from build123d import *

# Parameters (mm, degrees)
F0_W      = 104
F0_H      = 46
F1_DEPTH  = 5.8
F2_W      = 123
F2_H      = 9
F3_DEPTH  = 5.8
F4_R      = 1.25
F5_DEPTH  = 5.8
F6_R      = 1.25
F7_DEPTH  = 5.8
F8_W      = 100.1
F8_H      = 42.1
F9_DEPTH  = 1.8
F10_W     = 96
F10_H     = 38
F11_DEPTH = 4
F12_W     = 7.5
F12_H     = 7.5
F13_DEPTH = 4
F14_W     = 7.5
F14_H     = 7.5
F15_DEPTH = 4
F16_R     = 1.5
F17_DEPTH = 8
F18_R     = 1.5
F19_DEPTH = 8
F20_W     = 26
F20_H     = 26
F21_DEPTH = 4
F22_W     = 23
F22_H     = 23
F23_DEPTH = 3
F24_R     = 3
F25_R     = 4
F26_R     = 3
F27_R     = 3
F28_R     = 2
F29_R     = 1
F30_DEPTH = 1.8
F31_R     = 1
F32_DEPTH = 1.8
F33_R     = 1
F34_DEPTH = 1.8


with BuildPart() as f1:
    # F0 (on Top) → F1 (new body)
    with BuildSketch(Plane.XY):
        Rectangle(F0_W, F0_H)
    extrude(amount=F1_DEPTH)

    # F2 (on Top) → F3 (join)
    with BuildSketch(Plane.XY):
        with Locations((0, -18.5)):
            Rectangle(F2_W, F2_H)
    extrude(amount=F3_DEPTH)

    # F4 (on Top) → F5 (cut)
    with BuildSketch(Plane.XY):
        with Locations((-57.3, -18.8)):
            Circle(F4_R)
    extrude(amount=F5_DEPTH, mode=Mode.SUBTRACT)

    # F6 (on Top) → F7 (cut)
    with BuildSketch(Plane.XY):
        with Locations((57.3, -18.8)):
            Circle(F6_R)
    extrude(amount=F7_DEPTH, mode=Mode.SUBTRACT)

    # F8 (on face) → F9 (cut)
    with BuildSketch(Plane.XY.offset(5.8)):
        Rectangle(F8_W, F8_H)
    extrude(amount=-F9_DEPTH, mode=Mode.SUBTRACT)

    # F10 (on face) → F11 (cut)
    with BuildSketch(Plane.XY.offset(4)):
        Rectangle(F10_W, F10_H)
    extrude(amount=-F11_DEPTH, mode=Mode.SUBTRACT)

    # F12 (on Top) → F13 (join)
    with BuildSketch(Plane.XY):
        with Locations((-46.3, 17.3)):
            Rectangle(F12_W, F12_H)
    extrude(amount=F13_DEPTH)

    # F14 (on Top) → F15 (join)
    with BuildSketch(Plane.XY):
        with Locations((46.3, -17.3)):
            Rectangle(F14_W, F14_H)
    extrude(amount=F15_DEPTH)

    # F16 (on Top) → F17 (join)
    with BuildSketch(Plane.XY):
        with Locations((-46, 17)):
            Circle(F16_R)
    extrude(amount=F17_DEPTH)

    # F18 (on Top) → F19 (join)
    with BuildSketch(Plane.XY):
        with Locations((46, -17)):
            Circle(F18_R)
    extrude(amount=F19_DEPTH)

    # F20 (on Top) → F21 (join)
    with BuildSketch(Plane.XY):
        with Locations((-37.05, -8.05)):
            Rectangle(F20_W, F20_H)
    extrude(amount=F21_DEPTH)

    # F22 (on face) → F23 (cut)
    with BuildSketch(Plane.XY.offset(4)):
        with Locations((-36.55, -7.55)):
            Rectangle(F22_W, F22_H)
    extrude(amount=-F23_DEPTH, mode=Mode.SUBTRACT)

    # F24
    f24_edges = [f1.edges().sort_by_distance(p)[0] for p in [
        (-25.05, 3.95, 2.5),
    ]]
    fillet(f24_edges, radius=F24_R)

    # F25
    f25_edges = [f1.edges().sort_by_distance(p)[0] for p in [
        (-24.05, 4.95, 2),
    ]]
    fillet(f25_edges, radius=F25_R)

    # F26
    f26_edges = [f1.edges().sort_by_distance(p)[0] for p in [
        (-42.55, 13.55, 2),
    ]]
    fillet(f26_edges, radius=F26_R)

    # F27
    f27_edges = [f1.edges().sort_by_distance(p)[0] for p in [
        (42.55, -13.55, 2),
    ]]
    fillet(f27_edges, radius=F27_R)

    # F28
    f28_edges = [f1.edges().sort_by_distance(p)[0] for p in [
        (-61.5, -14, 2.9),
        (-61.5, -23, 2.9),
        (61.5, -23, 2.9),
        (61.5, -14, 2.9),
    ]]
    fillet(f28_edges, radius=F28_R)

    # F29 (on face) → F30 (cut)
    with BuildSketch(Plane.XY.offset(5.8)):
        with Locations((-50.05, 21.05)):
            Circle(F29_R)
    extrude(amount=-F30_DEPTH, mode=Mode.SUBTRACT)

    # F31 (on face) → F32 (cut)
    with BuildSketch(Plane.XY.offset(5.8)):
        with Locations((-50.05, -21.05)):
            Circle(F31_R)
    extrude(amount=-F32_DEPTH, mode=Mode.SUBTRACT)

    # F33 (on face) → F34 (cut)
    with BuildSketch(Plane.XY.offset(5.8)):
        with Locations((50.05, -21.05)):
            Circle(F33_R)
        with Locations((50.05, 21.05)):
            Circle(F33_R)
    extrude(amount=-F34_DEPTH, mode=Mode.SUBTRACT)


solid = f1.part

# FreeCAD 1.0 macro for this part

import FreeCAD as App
import Part
import Sketcher

V = App.Vector
Q = App.Units.Quantity


def edges_at(feature, points):
    """Names of the edges that pass closest to the given points."""
    edges = feature.Shape.Edges
    near = lambda p: min(range(len(edges)), key=lambda i: edges[i].distToShape(Part.Vertex(*p))[0])
    return sorted({f"Edge{near(p) + 1}" for p in points})

doc = App.newDocument("Part")
body = doc.addObject("PartDesign::Body", "Body")

# Sketch on XY plane
sketch1 = doc.addObject("Sketcher::SketchObject", "Sketch")
body.addObject(sketch1)
sketch1.AttachmentSupport = (doc.XY_Plane, [""])
sketch1.MapMode = "FlatFace"
sketch1.addGeometry([
    Part.LineSegment(V(-52, 23, 0), V(-52, -23, 0)),
    Part.LineSegment(V(-52, -23, 0), V(52, -23, 0)),
    Part.LineSegment(V(52, -23, 0), V(52, 23, 0)),
    Part.LineSegment(V(52, 23, 0), V(-52, 23, 0)),
], False)
sketch1.addConstraint([
    Sketcher.Constraint("Coincident", 0, 2, 1, 1),
    Sketcher.Constraint("Coincident", 1, 2, 2, 1),
    Sketcher.Constraint("Coincident", 2, 2, 3, 1),
    Sketcher.Constraint("Coincident", 3, 2, 0, 1),
    Sketcher.Constraint("Vertical", 0),
    Sketcher.Constraint("Horizontal", 1),
    Sketcher.Constraint("Vertical", 2),
    Sketcher.Constraint("Horizontal", 3),
    Sketcher.Constraint("Symmetric", 0, 2, 2, 2, -1, 1),
    Sketcher.Constraint("DistanceX", 1, 1, 1, 2, Q("104 mm")),
    Sketcher.Constraint("DistanceY", 0, 2, 0, 1, Q("46 mm")),
])
pad1 = doc.addObject("PartDesign::Pad", "Pad")
body.addObject(pad1)
pad1.Profile = sketch1
pad1.Length = 5.8

# Sketch on XY plane
sketch2 = doc.addObject("Sketcher::SketchObject", "Sketch001")
body.addObject(sketch2)
sketch2.AttachmentSupport = (doc.XY_Plane, [""])
sketch2.MapMode = "FlatFace"
sketch2.addGeometry([
    Part.LineSegment(V(-62, -14, 0), V(-62, -23, 0)),
    Part.LineSegment(V(-62, -23, 0), V(62, -23, 0)),
    Part.LineSegment(V(62, -23, 0), V(62, -14, 0)),
    Part.LineSegment(V(62, -14, 0), V(-62, -14, 0)),
], False)
sketch2.addConstraint([
    Sketcher.Constraint("Coincident", 0, 2, 1, 1),
    Sketcher.Constraint("Coincident", 1, 2, 2, 1),
    Sketcher.Constraint("Coincident", 2, 2, 3, 1),
    Sketcher.Constraint("Coincident", 3, 2, 0, 1),
    Sketcher.Constraint("Vertical", 0),
    Sketcher.Constraint("Horizontal", 1),
    Sketcher.Constraint("Vertical", 2),
    Sketcher.Constraint("Horizontal", 3),
    Sketcher.Constraint("DistanceX", 1, 1, 1, 2, Q("123 mm")),
    Sketcher.Constraint("DistanceY", 0, 2, 0, 1, Q("9 mm")),
    Sketcher.Constraint("DistanceY", 0, 2, -1, 1, Q("23 mm")),
    Sketcher.Constraint("DistanceX", 0, 2, -1, 1, Q("61.5 mm")),
])
pad2 = doc.addObject("PartDesign::Pad", "Pad001")
body.addObject(pad2)
pad2.Profile = sketch2
pad2.Length = 5.8

# Sketch on XY plane
sketch3 = doc.addObject("Sketcher::SketchObject", "Sketch002")
body.addObject(sketch3)
sketch3.AttachmentSupport = (doc.XY_Plane, [""])
sketch3.MapMode = "FlatFace"
sketch3.addGeometry(Part.Circle(V(-57.3, -18.8, 0), V(0, 0, 1), 1.2), False)
sketch3.addConstraint([
    Sketcher.Constraint("Diameter", 0, Q("2.5 mm")),
    Sketcher.Constraint("DistanceX", 0, 3, -1, 1, Q("57.3 mm")),
    Sketcher.Constraint("DistanceY", 0, 3, -1, 1, Q("18.8 mm")),
])
pocket1 = doc.addObject("PartDesign::Pocket", "Pocket")
body.addObject(pocket1)
pocket1.Profile = sketch3
pocket1.Length = 5.8
pocket1.Reversed = True

# Sketch on XY plane
sketch4 = doc.addObject("Sketcher::SketchObject", "Sketch003")
body.addObject(sketch4)
sketch4.AttachmentSupport = (doc.XY_Plane, [""])
sketch4.MapMode = "FlatFace"
sketch4.addGeometry(Part.Circle(V(57.3, -18.8, 0), V(0, 0, 1), 1.2), False)
sketch4.addConstraint([
    Sketcher.Constraint("Diameter", 0, Q("2.5 mm")),
    Sketcher.Constraint("DistanceX", -1, 1, 0, 3, Q("57.3 mm")),
    Sketcher.Constraint("DistanceY", 0, 3, -1, 1, Q("18.8 mm")),
])
pocket2 = doc.addObject("PartDesign::Pocket", "Pocket001")
body.addObject(pocket2)
pocket2.Profile = sketch4
pocket2.Length = 5.8
pocket2.Reversed = True

# Sketch on XY plane
sketch5 = doc.addObject("Sketcher::SketchObject", "Sketch004")
body.addObject(sketch5)
sketch5.AttachmentSupport = (doc.XY_Plane, [""])
sketch5.MapMode = "FlatFace"
sketch5.AttachmentOffset = App.Placement(V(0, 0, 5.8), App.Rotation())
sketch5.addGeometry([
    Part.LineSegment(V(-50, 21, 0), V(-50, -21, 0)),
    Part.LineSegment(V(-50, -21, 0), V(50, -21, 0)),
    Part.LineSegment(V(50, -21, 0), V(50, 21, 0)),
    Part.LineSegment(V(50, 21, 0), V(-50, 21, 0)),
], False)
sketch5.addConstraint([
    Sketcher.Constraint("Coincident", 0, 2, 1, 1),
    Sketcher.Constraint("Coincident", 1, 2, 2, 1),
    Sketcher.Constraint("Coincident", 2, 2, 3, 1),
    Sketcher.Constraint("Coincident", 3, 2, 0, 1),
    Sketcher.Constraint("Vertical", 0),
    Sketcher.Constraint("Horizontal", 1),
    Sketcher.Constraint("Vertical", 2),
    Sketcher.Constraint("Horizontal", 3),
    Sketcher.Constraint("Symmetric", 0, 2, 2, 2, -1, 1),
    Sketcher.Constraint("DistanceX", 1, 1, 1, 2, Q("100.1 mm")),
    Sketcher.Constraint("DistanceY", 0, 2, 0, 1, Q("42.1 mm")),
])
pocket3 = doc.addObject("PartDesign::Pocket", "Pocket002")
body.addObject(pocket3)
pocket3.Profile = sketch5
pocket3.Length = 1.8

# Sketch on XY plane
sketch6 = doc.addObject("Sketcher::SketchObject", "Sketch005")
body.addObject(sketch6)
sketch6.AttachmentSupport = (doc.XY_Plane, [""])
sketch6.MapMode = "FlatFace"
sketch6.AttachmentOffset = App.Placement(V(0, 0, 4), App.Rotation())
sketch6.addGeometry([
    Part.LineSegment(V(-48, 19, 0), V(-48, -19, 0)),
    Part.LineSegment(V(-48, -19, 0), V(48, -19, 0)),
    Part.LineSegment(V(48, -19, 0), V(48, 19, 0)),
    Part.LineSegment(V(48, 19, 0), V(-48, 19, 0)),
], False)
sketch6.addConstraint([
    Sketcher.Constraint("Coincident", 0, 2, 1, 1),
    Sketcher.Constraint("Coincident", 1, 2, 2, 1),
    Sketcher.Constraint("Coincident", 2, 2, 3, 1),
    Sketcher.Constraint("Coincident", 3, 2, 0, 1),
    Sketcher.Constraint("Vertical", 0),
    Sketcher.Constraint("Horizontal", 1),
    Sketcher.Constraint("Vertical", 2),
    Sketcher.Constraint("Horizontal", 3),
    Sketcher.Constraint("Symmetric", 0, 2, 2, 2, -1, 1),
    Sketcher.Constraint("DistanceX", 1, 1, 1, 2, Q("96 mm")),
    Sketcher.Constraint("DistanceY", 0, 2, 0, 1, Q("38 mm")),
])
pocket4 = doc.addObject("PartDesign::Pocket", "Pocket003")
body.addObject(pocket4)
pocket4.Profile = sketch6
pocket4.Length = 4

# Sketch on XY plane
sketch7 = doc.addObject("Sketcher::SketchObject", "Sketch006")
body.addObject(sketch7)
sketch7.AttachmentSupport = (doc.XY_Plane, [""])
sketch7.MapMode = "FlatFace"
sketch7.addGeometry([
    Part.LineSegment(V(-50, 21, 0), V(-50, 14, 0)),
    Part.LineSegment(V(-50, 14, 0), V(-43, 14, 0)),
    Part.LineSegment(V(-43, 14, 0), V(-43, 21, 0)),
    Part.LineSegment(V(-43, 21, 0), V(-50, 21, 0)),
], False)
sketch7.addConstraint([
    Sketcher.Constraint("Coincident", 0, 2, 1, 1),
    Sketcher.Constraint("Coincident", 1, 2, 2, 1),
    Sketcher.Constraint("Coincident", 2, 2, 3, 1),
    Sketcher.Constraint("Coincident", 3, 2, 0, 1),
    Sketcher.Constraint("Vertical", 0),
    Sketcher.Constraint("Horizontal", 1),
    Sketcher.Constraint("Vertical", 2),
    Sketcher.Constraint("Horizontal", 3),
    Sketcher.Constraint("Equal", 3, 0),
    Sketcher.Constraint("DistanceX", 1, 1, 1, 2, Q("7.5 mm")),
    Sketcher.Constraint("DistanceX", 0, 2, -1, 1, Q("50.05 mm")),
    Sketcher.Constraint("DistanceY", -1, 1, 0, 2, Q("13.55 mm")),
])
pad3 = doc.addObject("PartDesign::Pad", "Pad002")
body.addObject(pad3)
pad3.Profile = sketch7
pad3.Length = 4

# Sketch on XY plane
sketch8 = doc.addObject("Sketcher::SketchObject", "Sketch007")
body.addObject(sketch8)
sketch8.AttachmentSupport = (doc.XY_Plane, [""])
sketch8.MapMode = "FlatFace"
sketch8.addGeometry([
    Part.LineSegment(V(43, -14, 0), V(43, -21, 0)),
    Part.LineSegment(V(43, -21, 0), V(50, -21, 0)),
    Part.LineSegment(V(50, -21, 0), V(50, -14, 0)),
    Part.LineSegment(V(50, -14, 0), V(43, -14, 0)),
], False)
sketch8.addConstraint([
    Sketcher.Constraint("Coincident", 0, 2, 1, 1),
    Sketcher.Constraint("Coincident", 1, 2, 2, 1),
    Sketcher.Constraint("Coincident", 2, 2, 3, 1),
    Sketcher.Constraint("Coincident", 3, 2, 0, 1),
    Sketcher.Constraint("Vertical", 0),
    Sketcher.Constraint("Horizontal", 1),
    Sketcher.Constraint("Vertical", 2),
    Sketcher.Constraint("Horizontal", 3),
    Sketcher.Constraint("Equal", 3, 0),
    Sketcher.Constraint("DistanceX", 1, 1, 1, 2, Q("7.5 mm")),
    Sketcher.Constraint("DistanceX", -1, 1, 0, 2, Q("42.55 mm")),
    Sketcher.Constraint("DistanceY", 0, 2, -1, 1, Q("21.05 mm")),
])
pad4 = doc.addObject("PartDesign::Pad", "Pad003")
body.addObject(pad4)
pad4.Profile = sketch8
pad4.Length = 4

# Sketch on XY plane
sketch9 = doc.addObject("Sketcher::SketchObject", "Sketch008")
body.addObject(sketch9)
sketch9.AttachmentSupport = (doc.XY_Plane, [""])
sketch9.MapMode = "FlatFace"
sketch9.addGeometry(Part.Circle(V(-46, 17, 0), V(0, 0, 1), 1.5), False)
sketch9.addConstraint([
    Sketcher.Constraint("Diameter", 0, Q("3 mm")),
    Sketcher.Constraint("DistanceX", 0, 3, -1, 1, Q("46 mm")),
    Sketcher.Constraint("DistanceY", -1, 1, 0, 3, Q("17 mm")),
])
pad5 = doc.addObject("PartDesign::Pad", "Pad004")
body.addObject(pad5)
pad5.Profile = sketch9
pad5.Length = 8

# Sketch on XY plane
sketch10 = doc.addObject("Sketcher::SketchObject", "Sketch009")
body.addObject(sketch10)
sketch10.AttachmentSupport = (doc.XY_Plane, [""])
sketch10.MapMode = "FlatFace"
sketch10.addGeometry(Part.Circle(V(46, -17, 0), V(0, 0, 1), 1.5), False)
sketch10.addConstraint([
    Sketcher.Constraint("Diameter", 0, Q("3 mm")),
    Sketcher.Constraint("DistanceX", -1, 1, 0, 3, Q("46 mm")),
    Sketcher.Constraint("DistanceY", 0, 3, -1, 1, Q("17 mm")),
])
pad6 = doc.addObject("PartDesign::Pad", "Pad005")
body.addObject(pad6)
pad6.Profile = sketch10
pad6.Length = 8

# Sketch on XY plane
sketch11 = doc.addObject("Sketcher::SketchObject", "Sketch010")
body.addObject(sketch11)
sketch11.AttachmentSupport = (doc.XY_Plane, [""])
sketch11.MapMode = "FlatFace"
sketch11.addGeometry([
    Part.LineSegment(V(-50, 5, 0), V(-50, -21, 0)),
    Part.LineSegment(V(-50, -21, 0), V(-24, -21, 0)),
    Part.LineSegment(V(-24, -21, 0), V(-24, 5, 0)),
    Part.LineSegment(V(-24, 5, 0), V(-50, 5, 0)),
], False)
sketch11.addConstraint([
    Sketcher.Constraint("Coincident", 0, 2, 1, 1),
    Sketcher.Constraint("Coincident", 1, 2, 2, 1),
    Sketcher.Constraint("Coincident", 2, 2, 3, 1),
    Sketcher.Constraint("Coincident", 3, 2, 0, 1),
    Sketcher.Constraint("Vertical", 0),
    Sketcher.Constraint("Horizontal", 1),
    Sketcher.Constraint("Vertical", 2),
    Sketcher.Constraint("Horizontal", 3),
    Sketcher.Constraint("Equal", 3, 0),
    Sketcher.Constraint("DistanceX", 1, 1, 1, 2, Q("26 mm")),
    Sketcher.Constraint("DistanceX", 0, 2, -1, 1, Q("50.05 mm")),
    Sketcher.Constraint("DistanceY", 0, 2, -1, 1, Q("21.05 mm")),
])
pad7 = doc.addObject("PartDesign::Pad", "Pad006")
body.addObject(pad7)
pad7.Profile = sketch11
pad7.Length = 4

# Sketch on XY plane
sketch12 = doc.addObject("Sketcher::SketchObject", "Sketch011")
body.addObject(sketch12)
sketch12.AttachmentSupport = (doc.XY_Plane, [""])
sketch12.MapMode = "FlatFace"
sketch12.AttachmentOffset = App.Placement(V(0, 0, 4), App.Rotation())
sketch12.addGeometry([
    Part.LineSegment(V(-48, 4, 0), V(-48, -19, 0)),
    Part.LineSegment(V(-48, -19, 0), V(-25, -19, 0)),
    Part.LineSegment(V(-25, -19, 0), V(-25, 4, 0)),
    Part.LineSegment(V(-25, 4, 0), V(-48, 4, 0)),
], False)
sketch12.addConstraint([
    Sketcher.Constraint("Coincident", 0, 2, 1, 1),
    Sketcher.Constraint("Coincident", 1, 2, 2, 1),
    Sketcher.Constraint("Coincident", 2, 2, 3, 1),
    Sketcher.Constraint("Coincident", 3, 2, 0, 1),
    Sketcher.Constraint("Vertical", 0),
    Sketcher.Constraint("Horizontal", 1),
    Sketcher.Constraint("Vertical", 2),
    Sketcher.Constraint("Horizontal", 3),
    Sketcher.Constraint("Equal", 3, 0),
    Sketcher.Constraint("DistanceX", 1, 1, 1, 2, Q("23 mm")),
    Sketcher.Constraint("DistanceX", 0, 2, -1, 1, Q("48.05 mm")),
    Sketcher.Constraint("DistanceY", 0, 2, -1, 1, Q("19.05 mm")),
])
pocket5 = doc.addObject("PartDesign::Pocket", "Pocket004")
body.addObject(pocket5)
pocket5.Profile = sketch12
pocket5.Length = 3
doc.recompute()

fillet = doc.addObject("PartDesign::Fillet", "Fillet")
body.addObject(fillet)
fillet.Base = (pocket5, edges_at(pocket5, [(-25.05, 3.95, 2.5)]))
fillet.Radius = 3
doc.recompute()

fillet2 = doc.addObject("PartDesign::Fillet", "Fillet001")
body.addObject(fillet2)
fillet2.Base = (fillet, edges_at(fillet, [(-24.05, 4.95, 2)]))
fillet2.Radius = 4
doc.recompute()

fillet3 = doc.addObject("PartDesign::Fillet", "Fillet002")
body.addObject(fillet3)
fillet3.Base = (fillet2, edges_at(fillet2, [(-42.55, 13.55, 2)]))
fillet3.Radius = 3
doc.recompute()

fillet4 = doc.addObject("PartDesign::Fillet", "Fillet003")
body.addObject(fillet4)
fillet4.Base = (fillet3, edges_at(fillet3, [(42.55, -13.55, 2)]))
fillet4.Radius = 3
doc.recompute()

fillet5 = doc.addObject("PartDesign::Fillet", "Fillet004")
body.addObject(fillet5)
fillet5.Base = (fillet4, edges_at(fillet4, [
    (-61.5, -14, 2.9),
    (-61.5, -23, 2.9),
    (61.5, -23, 2.9),
    (61.5, -14, 2.9),
]))
fillet5.Radius = 2

# Sketch on XY plane
sketch13 = doc.addObject("Sketcher::SketchObject", "Sketch012")
body.addObject(sketch13)
sketch13.AttachmentSupport = (doc.XY_Plane, [""])
sketch13.MapMode = "FlatFace"
sketch13.AttachmentOffset = App.Placement(V(0, 0, 5.8), App.Rotation())
sketch13.addGeometry(Part.Circle(V(-50, 21.1, 0), V(0, 0, 1), 1), False)
sketch13.addConstraint([
    Sketcher.Constraint("Diameter", 0, Q("2 mm")),
    Sketcher.Constraint("DistanceX", 0, 3, -1, 1, Q("50.05 mm")),
    Sketcher.Constraint("DistanceY", -1, 1, 0, 3, Q("21.05 mm")),
])
pocket6 = doc.addObject("PartDesign::Pocket", "Pocket005")
body.addObject(pocket6)
pocket6.Profile = sketch13
pocket6.Length = 1.8

# Sketch on XY plane
sketch14 = doc.addObject("Sketcher::SketchObject", "Sketch013")
body.addObject(sketch14)
sketch14.AttachmentSupport = (doc.XY_Plane, [""])
sketch14.MapMode = "FlatFace"
sketch14.AttachmentOffset = App.Placement(V(0, 0, 5.8), App.Rotation())
sketch14.addGeometry(Part.Circle(V(-50, -21.1, 0), V(0, 0, 1), 1), False)
sketch14.addConstraint([
    Sketcher.Constraint("Diameter", 0, Q("2 mm")),
    Sketcher.Constraint("DistanceX", 0, 3, -1, 1, Q("50.05 mm")),
    Sketcher.Constraint("DistanceY", 0, 3, -1, 1, Q("21.05 mm")),
])
pocket7 = doc.addObject("PartDesign::Pocket", "Pocket006")
body.addObject(pocket7)
pocket7.Profile = sketch14
pocket7.Length = 1.8

# Sketch on XY plane
sketch15 = doc.addObject("Sketcher::SketchObject", "Sketch014")
body.addObject(sketch15)
sketch15.AttachmentSupport = (doc.XY_Plane, [""])
sketch15.MapMode = "FlatFace"
sketch15.AttachmentOffset = App.Placement(V(0, 0, 5.8), App.Rotation())
sketch15.addGeometry([
    Part.Circle(V(50, -21.1, 0), V(0, 0, 1), 1),
    Part.Circle(V(50, 21.1, 0), V(0, 0, 1), 1),
], False)
sketch15.addConstraint([
    Sketcher.Constraint("Equal", 0, 1),
    Sketcher.Constraint("Symmetric", 0, 3, 1, 3, -1),
    Sketcher.Constraint("Diameter", 0, Q("2 mm")),
    Sketcher.Constraint("DistanceY", 0, 3, 1, 3, Q("42.1 mm")),
    Sketcher.Constraint("DistanceX", -1, 1, 0, 3, Q("50.05 mm")),
])
pocket8 = doc.addObject("PartDesign::Pocket", "Pocket007")
body.addObject(pocket8)
pocket8.Profile = sketch15
pocket8.Length = 1.8

doc.recompute()
